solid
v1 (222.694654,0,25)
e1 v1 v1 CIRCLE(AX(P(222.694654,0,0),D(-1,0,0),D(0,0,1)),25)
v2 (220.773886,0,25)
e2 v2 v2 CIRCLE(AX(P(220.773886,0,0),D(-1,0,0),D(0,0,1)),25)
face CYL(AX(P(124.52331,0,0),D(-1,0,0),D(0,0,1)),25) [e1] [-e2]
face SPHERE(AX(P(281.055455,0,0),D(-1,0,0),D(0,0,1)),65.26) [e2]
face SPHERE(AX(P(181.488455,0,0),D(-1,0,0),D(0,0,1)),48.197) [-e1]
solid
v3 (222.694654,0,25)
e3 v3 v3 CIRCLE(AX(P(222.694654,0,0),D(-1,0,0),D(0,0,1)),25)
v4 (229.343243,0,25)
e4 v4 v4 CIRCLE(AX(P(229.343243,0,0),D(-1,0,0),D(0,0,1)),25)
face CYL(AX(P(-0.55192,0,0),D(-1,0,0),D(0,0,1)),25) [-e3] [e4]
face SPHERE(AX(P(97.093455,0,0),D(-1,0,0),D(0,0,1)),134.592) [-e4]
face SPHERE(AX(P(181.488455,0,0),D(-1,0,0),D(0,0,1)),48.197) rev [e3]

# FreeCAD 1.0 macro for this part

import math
import FreeCAD as App
import Part
import Sketcher

V = App.Vector
Q = App.Units.Quantity

doc = App.newDocument("Part")
body = doc.addObject("PartDesign::Body", "Body")

sketch1 = body.newObject("Sketcher::SketchObject", "Sketch")
sketch1.AttachmentSupport = (doc.getObject("XZ_Plane"), [""])
sketch1.MapMode = "FlatFace"
sketch1.addGeometry(Part.ArcOfCircle(Part.Circle(V(281.1, 0, 0), V(0, 0, 1), 65.3), math.radians(-180), math.radians(-157)), False)
sketch1.addGeometry(Part.LineSegment(V(215.8, 0, 0), V(229.7, 0, 0)), False)
sketch1.addGeometry(Part.ArcOfCircle(Part.Circle(V(181.5, 0, 0), V(0, 0, 1), 48.2), math.radians(-31), math.radians(0)), False)
sketch1.addGeometry(Part.LineSegment(V(222.7, -25, 0), V(220.8, -25, 0)), False)
sketch1.addConstraint(Sketcher.Constraint("Coincident", 0, 1, 1, 1))
sketch1.addConstraint(Sketcher.Constraint("Coincident", 1, 2, 2, 2))
sketch1.addConstraint(Sketcher.Constraint("Coincident", 2, 1, 3, 1))
sketch1.addConstraint(Sketcher.Constraint("Coincident", 3, 2, 0, 2))
sketch1.addConstraint(Sketcher.Constraint("Horizontal", 1))
sketch1.addConstraint(Sketcher.Constraint("Horizontal", 3))
sketch1.addConstraint(Sketcher.Constraint("PointOnObject", 0, 3, -1))
sketch1.addConstraint(Sketcher.Constraint("PointOnObject", 2, 3, -1))
sketch1.addConstraint(Sketcher.Constraint("PointOnObject", 0, 1, -1))
sketch1.addConstraint(Sketcher.Constraint("Radius", 0, Q("65.26 mm")))
sketch1.addConstraint(Sketcher.Constraint("DistanceY", 2, 1, -1, 1, Q("25 mm")))
sketch1.addConstraint(Sketcher.Constraint("Radius", 2, Q("48.197 mm")))
sketch1.addConstraint(Sketcher.Constraint("DistanceX", 1, 1, 1, 2, Q("13.89 mm")))
sketch1.addConstraint(Sketcher.Constraint("DistanceX", -1, 1, 0, 3, Q("281.055455 mm")))
revolution = body.newObject("PartDesign::Revolution", "Revolution")
revolution.Profile = sketch1
revolution.ReferenceAxis = (sketch1, ["H_Axis"])
revolution.Angle = 360
body2 = doc.addObject("PartDesign::Body", "Body001")

sketch2 = body2.newObject("Sketcher::SketchObject", "Sketch001")
sketch2.AttachmentSupport = (doc.getObject("XZ_Plane001"), [""])
sketch2.MapMode = "FlatFace"
sketch2.addGeometry(Part.LineSegment(V(229.3, -25, 0), V(222.7, -25, 0)), False)
sketch2.addGeometry(Part.ArcOfCircle(Part.Circle(V(181.5, 0, 0), V(0, 0, 1), 48.2), math.radians(-31), math.radians(0)), False)
sketch2.addGeometry(Part.LineSegment(V(229.7, 0, 0), V(231.7, 0, 0)), False)
sketch2.addGeometry(Part.ArcOfCircle(Part.Circle(V(97.1, 0, 0), V(0, 0, 1), 134.6), math.radians(-10.7), math.radians(0)), False)
sketch2.addConstraint(Sketcher.Constraint("Coincident", 0, 2, 1, 1))
sketch2.addConstraint(Sketcher.Constraint("Coincident", 1, 2, 2, 1))
sketch2.addConstraint(Sketcher.Constraint("Coincident", 2, 2, 3, 2))
sketch2.addConstraint(Sketcher.Constraint("Coincident", 3, 1, 0, 1))
sketch2.addConstraint(Sketcher.Constraint("Horizontal", 0))
sketch2.addConstraint(Sketcher.Constraint("Horizontal", 2))
sketch2.addConstraint(Sketcher.Constraint("PointOnObject", 1, 3, -1))
sketch2.addConstraint(Sketcher.Constraint("PointOnObject", 3, 3, -1))
sketch2.addConstraint(Sketcher.Constraint("PointOnObject", 1, 2, -1))
sketch2.addConstraint(Sketcher.Constraint("DistanceX", 2, 1, 2, 2, Q("2 mm")))
sketch2.addConstraint(Sketcher.Constraint("DistanceY", 0, 2, -1, 1, Q("25 mm")))
sketch2.addConstraint(Sketcher.Constraint("Radius", 1, Q("48.197 mm")))
sketch2.addConstraint(Sketcher.Constraint("Radius", 3, Q("134.592 mm")))
sketch2.addConstraint(Sketcher.Constraint("DistanceX", -1, 1, 1, 3, Q("181.488455 mm")))
revolution2 = body2.newObject("PartDesign::Revolution", "Revolution001")
revolution2.Profile = sketch2
revolution2.ReferenceAxis = (sketch2, ["H_Axis"])
revolution2.Angle = 360

doc.recompute()
